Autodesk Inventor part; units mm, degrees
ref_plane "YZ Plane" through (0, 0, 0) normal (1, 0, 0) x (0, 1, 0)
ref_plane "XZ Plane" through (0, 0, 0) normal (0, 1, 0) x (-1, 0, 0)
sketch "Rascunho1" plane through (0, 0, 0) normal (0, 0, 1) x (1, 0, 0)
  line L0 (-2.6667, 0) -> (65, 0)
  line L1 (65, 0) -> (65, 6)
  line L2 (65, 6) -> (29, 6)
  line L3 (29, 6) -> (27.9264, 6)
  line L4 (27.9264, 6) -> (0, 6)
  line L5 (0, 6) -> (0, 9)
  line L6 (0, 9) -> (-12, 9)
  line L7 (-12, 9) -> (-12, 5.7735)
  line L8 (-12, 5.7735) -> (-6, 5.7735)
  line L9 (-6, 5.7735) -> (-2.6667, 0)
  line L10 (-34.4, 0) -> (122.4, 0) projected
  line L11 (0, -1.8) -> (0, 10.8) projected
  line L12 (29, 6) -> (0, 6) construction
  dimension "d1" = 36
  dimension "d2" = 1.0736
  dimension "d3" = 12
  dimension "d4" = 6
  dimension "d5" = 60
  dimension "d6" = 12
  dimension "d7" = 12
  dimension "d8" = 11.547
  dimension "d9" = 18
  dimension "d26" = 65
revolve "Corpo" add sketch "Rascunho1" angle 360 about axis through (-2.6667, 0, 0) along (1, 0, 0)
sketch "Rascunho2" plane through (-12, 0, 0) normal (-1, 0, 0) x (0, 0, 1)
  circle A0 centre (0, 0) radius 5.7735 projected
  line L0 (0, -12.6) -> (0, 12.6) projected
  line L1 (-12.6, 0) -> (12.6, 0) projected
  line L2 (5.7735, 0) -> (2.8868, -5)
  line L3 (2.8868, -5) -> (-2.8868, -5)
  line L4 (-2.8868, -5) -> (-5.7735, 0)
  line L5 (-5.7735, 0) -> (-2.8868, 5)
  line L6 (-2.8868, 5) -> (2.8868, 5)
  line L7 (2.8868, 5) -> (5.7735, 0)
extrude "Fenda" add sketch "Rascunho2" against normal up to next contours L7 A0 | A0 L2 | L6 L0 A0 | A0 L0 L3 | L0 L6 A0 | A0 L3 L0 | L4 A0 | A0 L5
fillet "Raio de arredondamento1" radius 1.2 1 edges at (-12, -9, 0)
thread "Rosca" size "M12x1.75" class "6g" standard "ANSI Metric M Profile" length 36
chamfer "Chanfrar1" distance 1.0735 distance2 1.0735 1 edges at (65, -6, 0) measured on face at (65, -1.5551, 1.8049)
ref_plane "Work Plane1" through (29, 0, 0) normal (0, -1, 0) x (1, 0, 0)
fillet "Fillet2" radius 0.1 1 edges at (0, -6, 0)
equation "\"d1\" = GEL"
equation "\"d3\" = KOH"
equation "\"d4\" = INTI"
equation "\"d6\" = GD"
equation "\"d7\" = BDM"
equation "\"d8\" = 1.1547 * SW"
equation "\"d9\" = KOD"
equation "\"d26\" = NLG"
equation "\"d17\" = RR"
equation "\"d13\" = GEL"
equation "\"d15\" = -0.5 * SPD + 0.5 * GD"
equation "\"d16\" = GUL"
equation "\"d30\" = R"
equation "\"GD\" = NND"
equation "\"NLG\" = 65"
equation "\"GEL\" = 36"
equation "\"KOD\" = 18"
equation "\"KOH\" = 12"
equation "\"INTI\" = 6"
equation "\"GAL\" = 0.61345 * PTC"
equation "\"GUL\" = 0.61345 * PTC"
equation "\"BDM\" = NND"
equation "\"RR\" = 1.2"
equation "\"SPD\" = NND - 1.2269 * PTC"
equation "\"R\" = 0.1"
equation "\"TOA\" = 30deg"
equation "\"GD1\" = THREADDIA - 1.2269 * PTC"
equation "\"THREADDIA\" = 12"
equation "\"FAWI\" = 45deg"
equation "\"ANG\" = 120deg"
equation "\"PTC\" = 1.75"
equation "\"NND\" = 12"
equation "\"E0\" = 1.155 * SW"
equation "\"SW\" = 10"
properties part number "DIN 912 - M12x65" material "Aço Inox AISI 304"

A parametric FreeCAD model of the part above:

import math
import FreeCAD as App
import Part
import Sketcher
from FreeCAD import Vector
Q = App.Units.Quantity


def edges_at(feature, points):
    """Names of the edges that pass closest to the given points."""
    edges = feature.Shape.Edges
    near = lambda p: min(range(len(edges)), key=lambda i: edges[i].distToShape(Part.Vertex(*p))[0])
    return sorted({f"Edge{near(p) + 1}" for p in points})

doc = App.newDocument("Part")
params = doc.addObject("Spreadsheet::Sheet", "Params")
for row, (alias, value) in enumerate([
    ("sketch1_width", "65 mm"),
    ("sketch1_width2", "12 mm"),
    ("sketch1_width3", "6 mm"),
    ("sketch1_height", "3 mm"),
    ("revolution_angle", "360 deg"),
    ("pad1_length", "6.4466 mm"),
    ("fillet_radius", "1.2 mm"),
    ("chamfer_size", "1.0735 mm"),
    ("chamfer_size2", "1.0735 mm"),
    ("fillet2_radius", "0.1 mm"),
], start=1):
    params.set(f"A{row}", alias)
    params.set(f"B{row}", "=" + value)
    params.setAlias(f"B{row}", alias)

body = doc.addObject("PartDesign::Body", "Body")

sketch1 = body.newObject("Sketcher::SketchObject", "Sketch")
sketch1.AttachmentSupport = (doc.getObject("XY_Plane"), [""])
sketch1.MapMode = "FlatFace"
sketch1.addGeometry([
    Part.LineSegment(Vector(-6, 5.8, 0), Vector(-2.7, 0, 0)),
    Part.LineSegment(Vector(-2.7, 0, 0), Vector(65, 0, 0)),
    Part.LineSegment(Vector(65, 0, 0), Vector(65, 6, 0)),
    Part.LineSegment(Vector(65, 6, 0), Vector(0, 6, 0)),
    Part.LineSegment(Vector(0, 6, 0), Vector(0, 9, 0)),
    Part.LineSegment(Vector(0, 9, 0), Vector(-12, 9, 0)),
    Part.LineSegment(Vector(-12, 9, 0), Vector(-12, 5.8, 0)),
    Part.LineSegment(Vector(-12, 5.8, 0), Vector(-6, 5.8, 0)),
], False)
sketch1.addConstraint([
    Sketcher.Constraint("Coincident", 0, 2, 1, 1),
    Sketcher.Constraint("Coincident", 1, 2, 2, 1),
    Sketcher.Constraint("Coincident", 2, 2, 3, 1),
    Sketcher.Constraint("Coincident", 3, 2, 4, 1),
    Sketcher.Constraint("Coincident", 4, 2, 5, 1),
    Sketcher.Constraint("Coincident", 5, 2, 6, 1),
    Sketcher.Constraint("Coincident", 6, 2, 7, 1),
    Sketcher.Constraint("Coincident", 7, 2, 0, 1),
    Sketcher.Constraint("Horizontal", 1),
    Sketcher.Constraint("Vertical", 2),
    Sketcher.Constraint("Horizontal", 3),
    Sketcher.Constraint("Vertical", 4),
    Sketcher.Constraint("Horizontal", 5),
    Sketcher.Constraint("Vertical", 6),
    Sketcher.Constraint("Horizontal", 7),
    Sketcher.Constraint("PointOnObject", 0, 2, -1),
    Sketcher.Constraint("PointOnObject", 3, 2, -2),
    Sketcher.Constraint("Equal", 7, 2),
    Sketcher.Constraint("DistanceX", 3, 2, 3, 1, Q("65 mm")),
    Sketcher.Constraint("DistanceX", 5, 2, 5, 1, Q("12 mm")),
    Sketcher.Constraint("DistanceX", 7, 1, 7, 2, Q("6 mm")),
    Sketcher.Constraint("Angle", 0, Q("-60.0002 deg")),
    Sketcher.Constraint("DistanceY", 4, 1, 4, 2, Q("3 mm")),
    Sketcher.Constraint("DistanceX", 1, 1, 1, 2, Q("67.6667 mm")),
])
sketch1.setExpression("Constraints[18]", "Params.sketch1_width")
sketch1.setExpression("Constraints[19]", "Params.sketch1_width2")
sketch1.setExpression("Constraints[20]", "Params.sketch1_width3")
sketch1.setExpression("Constraints[22]", "Params.sketch1_height")
revolution = body.newObject("PartDesign::Revolution", "Revolution")
revolution.Profile = sketch1
revolution.ReferenceAxis = (sketch1, ["H_Axis"])
revolution.setExpression("Angle", "Params.revolution_angle")

sketch2 = body.newObject("Sketcher::SketchObject", "Sketch001")
sketch2.AttachmentSupport = (doc.getObject("YZ_Plane"), [""])
sketch2.MapMode = "FlatFace"
sketch2.AttachmentOffset = App.Placement(Vector(0, 0, -12), App.Rotation())
sketch2.addGeometry([
    Part.LineSegment(Vector(5, 3, 0), Vector(0, 6, 0)),
    Part.ArcOfCircle(Part.Circle(Vector(0, 0, 0), Vector(0, 0, 1), 6), math.radians(30), math.radians(90)),
    Part.ArcOfCircle(Part.Circle(Vector(0, 0, 0), Vector(0, 0, 1), 6), math.radians(90), math.radians(150)),
    Part.LineSegment(Vector(0, 6, 0), Vector(-5, 3, 0)),
    Part.ArcOfCircle(Part.Circle(Vector(0, 0, 0), Vector(0, 0, 1), 6), math.radians(-30), math.radians(30)),
    Part.LineSegment(Vector(5, 3, 0), Vector(5, -3, 0)),
    Part.LineSegment(Vector(-5, 3, 0), Vector(-5, -3, 0)),
    Part.ArcOfCircle(Part.Circle(Vector(0, 0, 0), Vector(0, 0, 1), 6), math.radians(150), math.radians(210)),
    Part.LineSegment(Vector(-5, -3, 0), Vector(0, -6, 0)),
    Part.ArcOfCircle(Part.Circle(Vector(0, 0, 0), Vector(0, 0, 1), 6), math.radians(-150), math.radians(-90)),
    Part.ArcOfCircle(Part.Circle(Vector(0, 0, 0), Vector(0, 0, 1), 6), math.radians(-90), math.radians(-30)),
    Part.LineSegment(Vector(0, -6, 0), Vector(5, -3, 0)),
], False)
sketch2.addConstraint([
    Sketcher.Constraint("Coincident", 0, 1, 1, 1),
    Sketcher.Constraint("Coincident", 1, 2, 0, 2),
    Sketcher.Constraint("Coincident", 2, 1, 3, 1),
    Sketcher.Constraint("Coincident", 3, 2, 2, 2),
    Sketcher.Constraint("Coincident", 4, 1, 5, 2),
    Sketcher.Constraint("Coincident", 5, 1, 4, 2),
    Sketcher.Constraint("Coincident", 6, 1, 7, 1),
    Sketcher.Constraint("Coincident", 7, 2, 6, 2),
    Sketcher.Constraint("Coincident", 8, 1, 9, 1),
    Sketcher.Constraint("Coincident", 9, 2, 8, 2),
    Sketcher.Constraint("Coincident", 10, 1, 11, 1),
    Sketcher.Constraint("Coincident", 11, 2, 10, 2),
    Sketcher.Constraint("Vertical", 5),
    Sketcher.Constraint("Vertical", 6),
    Sketcher.Constraint("Coincident", 1, 3, -1, 1),
    Sketcher.Constraint("Coincident", 2, 3, -1, 1),
    Sketcher.Constraint("Coincident", 4, 3, -1, 1),
    Sketcher.Constraint("Coincident", 7, 3, -1, 1),
    Sketcher.Constraint("Coincident", 9, 3, -1, 1),
    Sketcher.Constraint("Coincident", 10, 3, -1, 1),
    Sketcher.Constraint("Coincident", 2, 1, 1, 2),
    Sketcher.Constraint("Coincident", 5, 1, 0, 1),
    Sketcher.Constraint("Coincident", 6, 1, 3, 2),
    Sketcher.Constraint("Coincident", 8, 1, 7, 2),
    Sketcher.Constraint("Coincident", 10, 1, 9, 2),
    Sketcher.Constraint("PointOnObject", 1, 2, -2),
    Sketcher.Constraint("PointOnObject", 9, 2, -2),
    Sketcher.Constraint("Parallel", 0, 8),
    Sketcher.Constraint("Parallel", 3, 11),
    Sketcher.Constraint("Angle", 0, Q("150.0004 deg")),
    Sketcher.Constraint("DistanceX", -1, 1, 0, 1, Q("5 mm")),
])
pad1 = body.newObject("PartDesign::Pad", "Pad")
pad1.Profile = sketch2
pad1.setExpression("Length", "Params.pad1_length")
doc.recompute()

fillet = body.newObject("PartDesign::Fillet", "Fillet")
fillet.Base = (pad1, edges_at(pad1, [(-12, -9, 0)]))
fillet.setExpression("Radius", "Params.fillet_radius")
doc.recompute()

chamfer = body.newObject("PartDesign::Chamfer", "Chamfer")
chamfer.Base = (fillet, edges_at(fillet, [(65, -6, 0)]))
chamfer.ChamferType = "Two distances"
chamfer.setExpression("Size", "Params.chamfer_size")
chamfer.setExpression("Size2", "Params.chamfer_size2")
doc.recompute()

fillet2 = body.newObject("PartDesign::Fillet", "Fillet001")
fillet2.Base = (chamfer, edges_at(chamfer, [(0, -6, 0)]))
fillet2.setExpression("Radius", "Params.fillet2_radius")

doc.recompute()
